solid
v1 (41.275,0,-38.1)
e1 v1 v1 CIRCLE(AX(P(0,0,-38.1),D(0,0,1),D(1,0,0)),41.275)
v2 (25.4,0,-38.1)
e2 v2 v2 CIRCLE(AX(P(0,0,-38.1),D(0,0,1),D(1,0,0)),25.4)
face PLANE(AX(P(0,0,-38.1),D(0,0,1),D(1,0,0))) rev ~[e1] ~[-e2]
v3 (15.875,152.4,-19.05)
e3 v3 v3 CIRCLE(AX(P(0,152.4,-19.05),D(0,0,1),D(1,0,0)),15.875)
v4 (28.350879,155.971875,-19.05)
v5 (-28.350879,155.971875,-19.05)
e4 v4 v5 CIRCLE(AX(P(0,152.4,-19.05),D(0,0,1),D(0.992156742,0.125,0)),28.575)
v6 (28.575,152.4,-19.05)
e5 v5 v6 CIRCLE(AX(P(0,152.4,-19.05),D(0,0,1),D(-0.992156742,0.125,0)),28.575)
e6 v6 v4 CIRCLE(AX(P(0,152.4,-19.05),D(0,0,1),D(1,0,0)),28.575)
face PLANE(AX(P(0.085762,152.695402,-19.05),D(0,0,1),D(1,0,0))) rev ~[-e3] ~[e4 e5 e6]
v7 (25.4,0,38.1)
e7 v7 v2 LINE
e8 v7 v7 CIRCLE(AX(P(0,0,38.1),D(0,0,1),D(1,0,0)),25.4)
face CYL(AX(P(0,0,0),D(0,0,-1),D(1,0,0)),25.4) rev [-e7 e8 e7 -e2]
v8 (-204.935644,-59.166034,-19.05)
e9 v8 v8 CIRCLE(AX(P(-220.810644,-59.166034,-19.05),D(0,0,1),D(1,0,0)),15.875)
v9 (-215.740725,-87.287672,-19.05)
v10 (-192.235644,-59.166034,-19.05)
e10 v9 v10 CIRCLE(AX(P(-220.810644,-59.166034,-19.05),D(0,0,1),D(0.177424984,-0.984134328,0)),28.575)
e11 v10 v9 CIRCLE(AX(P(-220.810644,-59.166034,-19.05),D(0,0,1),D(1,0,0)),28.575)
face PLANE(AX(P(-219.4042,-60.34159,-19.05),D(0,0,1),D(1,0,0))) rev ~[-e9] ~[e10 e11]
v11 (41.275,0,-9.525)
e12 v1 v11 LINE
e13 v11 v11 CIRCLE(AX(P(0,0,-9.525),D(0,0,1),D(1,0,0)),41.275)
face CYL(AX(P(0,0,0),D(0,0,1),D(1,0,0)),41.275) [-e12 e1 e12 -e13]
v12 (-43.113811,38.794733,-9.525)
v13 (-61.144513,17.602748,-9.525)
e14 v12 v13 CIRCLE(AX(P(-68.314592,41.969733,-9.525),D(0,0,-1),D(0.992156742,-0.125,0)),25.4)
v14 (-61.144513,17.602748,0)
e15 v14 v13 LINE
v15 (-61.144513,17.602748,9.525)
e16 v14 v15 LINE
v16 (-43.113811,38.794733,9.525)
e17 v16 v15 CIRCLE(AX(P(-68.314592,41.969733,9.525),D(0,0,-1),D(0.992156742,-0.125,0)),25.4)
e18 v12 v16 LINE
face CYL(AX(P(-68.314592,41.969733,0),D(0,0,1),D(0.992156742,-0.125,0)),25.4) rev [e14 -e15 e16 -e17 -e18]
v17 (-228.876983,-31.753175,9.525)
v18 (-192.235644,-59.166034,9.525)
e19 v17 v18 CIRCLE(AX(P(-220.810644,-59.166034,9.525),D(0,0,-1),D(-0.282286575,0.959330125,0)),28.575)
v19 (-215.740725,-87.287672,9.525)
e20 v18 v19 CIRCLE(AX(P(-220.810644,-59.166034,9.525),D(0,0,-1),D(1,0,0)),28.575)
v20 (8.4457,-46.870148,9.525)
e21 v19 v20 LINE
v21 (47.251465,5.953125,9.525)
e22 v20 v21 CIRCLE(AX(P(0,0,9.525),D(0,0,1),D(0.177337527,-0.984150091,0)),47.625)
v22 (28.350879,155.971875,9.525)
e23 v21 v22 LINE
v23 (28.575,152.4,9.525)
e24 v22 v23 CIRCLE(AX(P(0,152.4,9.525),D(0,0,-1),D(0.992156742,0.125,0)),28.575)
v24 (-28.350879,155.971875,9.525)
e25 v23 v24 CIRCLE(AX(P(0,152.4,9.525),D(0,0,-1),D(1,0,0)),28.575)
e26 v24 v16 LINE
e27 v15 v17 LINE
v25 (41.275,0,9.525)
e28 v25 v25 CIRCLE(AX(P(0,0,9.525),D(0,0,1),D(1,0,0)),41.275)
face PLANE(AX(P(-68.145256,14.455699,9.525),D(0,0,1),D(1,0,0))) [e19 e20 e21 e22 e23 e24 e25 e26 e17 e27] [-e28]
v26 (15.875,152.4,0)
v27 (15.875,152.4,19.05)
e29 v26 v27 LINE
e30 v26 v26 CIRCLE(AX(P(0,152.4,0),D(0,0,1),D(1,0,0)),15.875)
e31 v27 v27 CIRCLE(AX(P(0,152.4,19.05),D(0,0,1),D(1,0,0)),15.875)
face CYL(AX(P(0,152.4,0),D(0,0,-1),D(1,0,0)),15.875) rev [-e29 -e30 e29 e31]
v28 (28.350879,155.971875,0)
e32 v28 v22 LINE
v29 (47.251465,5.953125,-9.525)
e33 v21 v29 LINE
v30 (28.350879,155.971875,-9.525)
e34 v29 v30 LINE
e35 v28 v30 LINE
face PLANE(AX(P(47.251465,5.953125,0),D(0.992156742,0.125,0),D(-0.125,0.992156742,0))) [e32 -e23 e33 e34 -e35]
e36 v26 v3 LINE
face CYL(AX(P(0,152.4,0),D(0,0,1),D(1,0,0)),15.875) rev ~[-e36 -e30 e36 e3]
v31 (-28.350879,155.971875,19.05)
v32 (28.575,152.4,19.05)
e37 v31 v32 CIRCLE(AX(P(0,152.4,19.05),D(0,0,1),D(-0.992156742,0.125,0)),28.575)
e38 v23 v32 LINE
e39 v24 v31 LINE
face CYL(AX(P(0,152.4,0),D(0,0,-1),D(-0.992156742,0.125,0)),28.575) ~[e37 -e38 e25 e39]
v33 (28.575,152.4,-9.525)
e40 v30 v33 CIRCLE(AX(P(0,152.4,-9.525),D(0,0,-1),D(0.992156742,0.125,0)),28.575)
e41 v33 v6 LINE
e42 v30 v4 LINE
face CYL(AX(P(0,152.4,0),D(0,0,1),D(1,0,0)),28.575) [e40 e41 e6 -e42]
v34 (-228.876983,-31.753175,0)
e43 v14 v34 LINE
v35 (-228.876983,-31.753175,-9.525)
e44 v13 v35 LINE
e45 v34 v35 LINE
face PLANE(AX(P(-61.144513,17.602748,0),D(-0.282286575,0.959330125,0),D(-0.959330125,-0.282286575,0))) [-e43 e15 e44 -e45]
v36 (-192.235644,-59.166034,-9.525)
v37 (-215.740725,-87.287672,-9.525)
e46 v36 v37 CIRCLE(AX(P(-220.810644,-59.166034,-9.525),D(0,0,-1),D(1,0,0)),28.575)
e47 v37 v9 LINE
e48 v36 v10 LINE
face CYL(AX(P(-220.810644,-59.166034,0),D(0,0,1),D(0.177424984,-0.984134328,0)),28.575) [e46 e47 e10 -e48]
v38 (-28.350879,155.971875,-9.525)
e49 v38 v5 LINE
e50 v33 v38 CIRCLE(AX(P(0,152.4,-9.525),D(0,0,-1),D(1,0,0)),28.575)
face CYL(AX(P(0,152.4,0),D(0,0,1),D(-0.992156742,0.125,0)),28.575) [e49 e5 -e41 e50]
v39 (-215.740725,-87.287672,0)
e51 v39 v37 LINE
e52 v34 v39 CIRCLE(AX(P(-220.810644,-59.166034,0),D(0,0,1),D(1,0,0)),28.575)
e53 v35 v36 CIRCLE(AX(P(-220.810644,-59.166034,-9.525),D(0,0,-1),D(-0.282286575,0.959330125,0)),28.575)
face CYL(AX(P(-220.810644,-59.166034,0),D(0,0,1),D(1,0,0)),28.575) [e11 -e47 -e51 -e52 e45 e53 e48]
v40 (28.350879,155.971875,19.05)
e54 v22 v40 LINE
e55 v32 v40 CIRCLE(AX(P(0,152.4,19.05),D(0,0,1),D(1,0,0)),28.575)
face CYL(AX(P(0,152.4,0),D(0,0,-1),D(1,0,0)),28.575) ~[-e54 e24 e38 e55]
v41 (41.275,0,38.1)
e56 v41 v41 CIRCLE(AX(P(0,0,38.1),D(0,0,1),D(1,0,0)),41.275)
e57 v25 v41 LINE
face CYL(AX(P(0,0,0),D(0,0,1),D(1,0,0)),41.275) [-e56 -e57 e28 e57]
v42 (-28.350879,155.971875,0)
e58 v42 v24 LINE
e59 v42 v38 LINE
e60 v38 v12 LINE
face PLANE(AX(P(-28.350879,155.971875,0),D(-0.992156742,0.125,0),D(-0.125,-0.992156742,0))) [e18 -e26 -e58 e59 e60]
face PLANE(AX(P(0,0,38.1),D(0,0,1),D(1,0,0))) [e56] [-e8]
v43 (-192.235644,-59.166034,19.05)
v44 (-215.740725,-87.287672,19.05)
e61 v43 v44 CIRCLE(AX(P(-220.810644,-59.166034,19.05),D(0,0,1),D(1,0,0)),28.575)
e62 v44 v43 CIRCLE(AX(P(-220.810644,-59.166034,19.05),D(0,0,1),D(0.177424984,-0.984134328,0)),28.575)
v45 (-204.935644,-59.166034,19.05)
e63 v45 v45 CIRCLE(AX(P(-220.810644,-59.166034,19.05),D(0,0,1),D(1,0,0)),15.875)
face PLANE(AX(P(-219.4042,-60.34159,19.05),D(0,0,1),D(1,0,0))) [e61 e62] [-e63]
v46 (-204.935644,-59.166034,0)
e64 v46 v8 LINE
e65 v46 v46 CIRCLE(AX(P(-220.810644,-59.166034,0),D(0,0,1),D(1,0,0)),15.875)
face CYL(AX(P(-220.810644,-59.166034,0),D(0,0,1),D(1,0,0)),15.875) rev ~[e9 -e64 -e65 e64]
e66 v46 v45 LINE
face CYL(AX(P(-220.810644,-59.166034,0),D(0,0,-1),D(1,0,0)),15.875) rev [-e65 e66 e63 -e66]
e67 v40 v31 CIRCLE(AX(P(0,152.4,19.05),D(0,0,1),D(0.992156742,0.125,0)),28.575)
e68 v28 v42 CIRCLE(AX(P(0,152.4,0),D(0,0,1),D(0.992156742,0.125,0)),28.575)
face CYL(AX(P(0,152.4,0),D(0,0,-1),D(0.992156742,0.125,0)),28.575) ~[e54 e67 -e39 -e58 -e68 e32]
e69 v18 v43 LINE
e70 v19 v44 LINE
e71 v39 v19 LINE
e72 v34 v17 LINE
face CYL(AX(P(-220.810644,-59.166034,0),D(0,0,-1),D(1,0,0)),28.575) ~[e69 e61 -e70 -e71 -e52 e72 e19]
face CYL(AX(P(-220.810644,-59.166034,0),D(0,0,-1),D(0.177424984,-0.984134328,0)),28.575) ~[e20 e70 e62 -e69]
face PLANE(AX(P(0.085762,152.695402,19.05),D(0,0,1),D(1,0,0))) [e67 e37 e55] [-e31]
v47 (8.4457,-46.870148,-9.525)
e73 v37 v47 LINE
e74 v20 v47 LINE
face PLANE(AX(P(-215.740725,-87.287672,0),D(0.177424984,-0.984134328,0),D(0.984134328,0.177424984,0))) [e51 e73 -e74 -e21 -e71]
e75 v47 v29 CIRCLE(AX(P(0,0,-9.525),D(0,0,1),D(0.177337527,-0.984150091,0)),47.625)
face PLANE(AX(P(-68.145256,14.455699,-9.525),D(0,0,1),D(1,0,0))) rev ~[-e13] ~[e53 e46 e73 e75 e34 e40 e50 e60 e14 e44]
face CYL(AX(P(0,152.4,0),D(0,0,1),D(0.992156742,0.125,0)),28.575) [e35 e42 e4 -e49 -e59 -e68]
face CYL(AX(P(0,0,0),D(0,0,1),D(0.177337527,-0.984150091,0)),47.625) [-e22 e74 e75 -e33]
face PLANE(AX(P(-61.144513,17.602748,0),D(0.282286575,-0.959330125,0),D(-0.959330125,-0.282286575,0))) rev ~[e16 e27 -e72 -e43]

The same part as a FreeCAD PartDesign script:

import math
import FreeCAD as App
import Part
import Sketcher

V = App.Vector
Q = App.Units.Quantity

doc = App.newDocument("Part")
body = doc.addObject("PartDesign::Body", "Body")

sketch1 = body.newObject("Sketcher::SketchObject", "Sketch")
sketch1.AttachmentSupport = (doc.getObject("XY_Plane"), [""])
sketch1.MapMode = "FlatFace"
sketch1.addGeometry([
    Part.Circle(V(0, 0, 0), V(0, 0, 1), 41),
    Part.Circle(V(0, 0, 0), V(0, 0, 1), 25),
], False)
sketch1.addConstraint([
    Sketcher.Constraint("Coincident", 0, 3, -1, 1),
    Sketcher.Constraint("Coincident", 1, 3, -1, 1),
    Sketcher.Constraint("Diameter", 1, Q("2 in")),
    Sketcher.Constraint("Diameter", 0, Q("3.25 in")),
])
pad1 = body.newObject("PartDesign::Pad", "Pad")
pad1.Profile = sketch1
pad1.Length = Q("3 in")
pad1.Midplane = True
body2 = doc.addObject("PartDesign::Body", "Body001")

sketch2 = body2.newObject("Sketcher::SketchObject", "Sketch001")
sketch2.AttachmentSupport = (doc.getObject("XY_Plane001"), [""])
sketch2.MapMode = "FlatFace"
sketch2.addGeometry([
    Part.ArcOfCircle(Part.Circle(V(0, 152.4, 0), V(0, 0, 1), 28.6), math.radians(173), math.radians(360)),
    Part.ArcOfCircle(Part.Circle(V(0, 152.4, 0), V(0, 0, 1), 28.6), math.radians(0), math.radians(7.18)),
    Part.ArcOfCircle(Part.Circle(V(0, 152.4, 0), V(0, 0, 1), 28.6), math.radians(7), math.radians(173)),
    Part.Circle(V(0, 152.4, 0), V(0, 0, 1), 15.9),
], False)
sketch2.addConstraint([
    Sketcher.Constraint("Tangent", 0, 2, 1, 1),
    Sketcher.Constraint("Tangent", 1, 2, 2, 1),
    Sketcher.Constraint("Tangent", 2, 2, 0, 1),
    Sketcher.Constraint("Coincident", 3, 3, 0, 3),
    Sketcher.Constraint("Symmetric", 1, 2, 2, 2, -2),
    Sketcher.Constraint("Horizontal", 3, 3, 0, 2),
    Sketcher.Constraint("Diameter", 3, Q("1.25 in")),
    Sketcher.Constraint("DistanceY", -1, 1, 0, 3, Q("6 in")),
    Sketcher.Constraint("Radius", 0, Q("1.125 in")),
    Sketcher.Constraint("DistanceY", -1, 1, 1, 2, Q("6.140625 in")),
])
pad2 = body2.newObject("PartDesign::Pad", "Pad001")
pad2.Profile = sketch2
pad2.Length = Q("1.5 in")
pad2.Midplane = True
body3 = doc.addObject("PartDesign::Body", "Body002")

sketch3 = body3.newObject("Sketcher::SketchObject", "Sketch002")
sketch3.AttachmentSupport = (doc.getObject("XY_Plane002"), [""])
sketch3.MapMode = "FlatFace"
sketch3.addGeometry([
    Part.ArcOfCircle(Part.Circle(V(-221, -59, 0), V(0, 0, 1), 29), math.radians(-80), math.radians(0)),
    Part.ArcOfCircle(Part.Circle(V(-221, -59, 0), V(0, 0, 1), 29), math.radians(0), math.radians(280)),
    Part.Circle(V(-221, -59, 0), V(0, 0, 1), 16),
], False)
sketch3.addConstraint([
    Sketcher.Constraint("Tangent", 0, 1, 1, 2),
    Sketcher.Constraint("Coincident", 1, 1, 0, 2),
    Sketcher.Constraint("Coincident", 2, 3, 0, 3),
    Sketcher.Constraint("Horizontal", 2, 3, 1, 1),
    Sketcher.Constraint("Diameter", 2, Q("1.25 in")),
    Sketcher.Constraint("Radius", 0, Q("1.125 in")),
    Sketcher.Constraint("DistanceX", 0, 3, 0, 1, 5.069919),
    Sketcher.Constraint("DistanceX", 0, 3, -1, 1, 220.810644),
    Sketcher.Constraint("DistanceY", 0, 3, -1, 1, 59.166034),
])
pad3 = body3.newObject("PartDesign::Pad", "Pad002")
pad3.Profile = sketch3
pad3.Length = Q("1.5 in")
pad3.Midplane = True
body.AllowCompound = True
doc.recompute()

boolean = body.newObject("PartDesign::Boolean", "Boolean")
boolean.Type = "Fuse"
boolean.addObjects([body2])
doc.recompute()

boolean2 = body.newObject("PartDesign::Boolean", "Boolean001")
boolean2.Type = "Fuse"
boolean2.addObjects([body3])

sketch4 = body.newObject("Sketcher::SketchObject", "Sketch003")
sketch4.AttachmentSupport = (doc.getObject("XY_Plane"), [""])
sketch4.MapMode = "FlatFace"
sketch4.addGeometry([
    Part.ArcOfCircle(Part.Circle(V(0, 152.4, 0), V(0, 0, 1), 28.575), math.radians(0), math.radians(7.180756)),
    Part.ArcOfCircle(Part.Circle(V(0, 152.4, 0), V(0, 0, 1), 28.575), math.radians(172.819244), math.radians(360)),
    Part.LineSegment(V(-28.350879, 155.971875, 0), V(-43.113811, 38.794733, 0)),
    Part.ArcOfCircle(Part.Circle(V(-68.314592, 41.969733, 0), V(0, 0, 1), 25.4), math.radians(-73.603278), math.radians(-7.180756)),
    Part.LineSegment(V(-61.144513, 17.602748, 0), V(-228.876983, -31.753175, 0)),
    Part.ArcOfCircle(Part.Circle(V(-220.810644, -59.166034, 0), V(0, 0, 1), 28.575), math.radians(0), math.radians(106.396722)),
    Part.ArcOfCircle(Part.Circle(V(-220.810644, -59.166034, 0), V(0, 0, 1), 28.575), math.radians(-79.780192), math.radians(0)),
    Part.LineSegment(V(-215.740725, -87.287672, 0), V(8.4457, -46.870148, 0)),
    Part.ArcOfCircle(Part.Circle(V(0, 0, 0), V(0, 0, 1), 47.625), math.radians(-79.785283), math.radians(7.180756)),
    Part.LineSegment(V(47.251465, 5.953125, 0), V(28.350879, 155.971875, 0)),
    Part.Circle(V(0, 0, 0), V(0, 0, 1), 41.275),
], False)
sketch4.addConstraint([
    Sketcher.Constraint("Coincident", 0, 1, 1, 2),
    Sketcher.Constraint("Coincident", 1, 1, 2, 1),
    Sketcher.Constraint("Coincident", 2, 2, 3, 2),
    Sketcher.Constraint("Coincident", 3, 1, 4, 1),
    Sketcher.Constraint("Coincident", 4, 2, 5, 2),
    Sketcher.Constraint("Coincident", 5, 1, 6, 2),
    Sketcher.Constraint("Coincident", 6, 1, 7, 1),
    Sketcher.Constraint("Coincident", 7, 2, 8, 1),
    Sketcher.Constraint("Coincident", 8, 2, 9, 1),
    Sketcher.Constraint("Coincident", 9, 2, 0, 2),
    Sketcher.Constraint("Coincident", 8, 3, -1, 1),
    Sketcher.Constraint("Coincident", 10, 3, -1, 1),
    Sketcher.Constraint("Coincident", 1, 3, 0, 3),
    Sketcher.Constraint("Coincident", 6, 3, 5, 3),
    Sketcher.Constraint("PointOnObject", 0, 3, -2),
    Sketcher.Constraint("Radius", 3, Q("1 in")),
    Sketcher.Constraint("Diameter", 10, Q("3.25 in")),
    Sketcher.Constraint("DistanceY", -1, 1, 0, 3, Q("6 in")),
    Sketcher.Constraint("DistanceY", -1, 1, 0, 1, Q("6 in")),
    Sketcher.Constraint("Radius", 0, Q("1.125 in")),
    Sketcher.Constraint("Radius", 5, Q("1.125 in")),
    Sketcher.Constraint("Radius", 8, Q("1.875 in")),
    Sketcher.Constraint("DistanceY", -1, 1, 1, 1, Q("6.140625 in")),
    Sketcher.Constraint("DistanceY", -1, 1, 8, 2, Q("0.234375 in")),
    Sketcher.Constraint("DistanceY", -1, 1, 9, 2, Q("6.140625 in")),
    Sketcher.Constraint("DistanceY", 2, 2, 3, 3, Q("0.125 in")),
    Sketcher.Constraint("DistanceX", -1, 1, 7, 2, 8.4457),
    Sketcher.Constraint("DistanceX", 2, 2, -1, 1, 43.113811),
    Sketcher.Constraint("DistanceY", -1, 1, 3, 1, 17.602748),
    Sketcher.Constraint("DistanceX", 5, 3, 3, 3, 152.496052),
    Sketcher.Constraint("DistanceY", 3, 3, 1, 1, 114.002142),
    Sketcher.Constraint("DistanceX", 4, 2, 5, 3, 8.066339),
    Sketcher.Constraint("DistanceY", 4, 2, 3, 3, 73.722909),
    Sketcher.Constraint("DistanceY", 5, 1, 4, 2, 27.412858),
    Sketcher.Constraint("DistanceX", 5, 3, 6, 1, 5.069919),
])
pad4 = body.newObject("PartDesign::Pad", "Pad003")
pad4.Profile = sketch4
pad4.Length = Q("0.75 in")
pad4.Midplane = True

doc.recompute()
